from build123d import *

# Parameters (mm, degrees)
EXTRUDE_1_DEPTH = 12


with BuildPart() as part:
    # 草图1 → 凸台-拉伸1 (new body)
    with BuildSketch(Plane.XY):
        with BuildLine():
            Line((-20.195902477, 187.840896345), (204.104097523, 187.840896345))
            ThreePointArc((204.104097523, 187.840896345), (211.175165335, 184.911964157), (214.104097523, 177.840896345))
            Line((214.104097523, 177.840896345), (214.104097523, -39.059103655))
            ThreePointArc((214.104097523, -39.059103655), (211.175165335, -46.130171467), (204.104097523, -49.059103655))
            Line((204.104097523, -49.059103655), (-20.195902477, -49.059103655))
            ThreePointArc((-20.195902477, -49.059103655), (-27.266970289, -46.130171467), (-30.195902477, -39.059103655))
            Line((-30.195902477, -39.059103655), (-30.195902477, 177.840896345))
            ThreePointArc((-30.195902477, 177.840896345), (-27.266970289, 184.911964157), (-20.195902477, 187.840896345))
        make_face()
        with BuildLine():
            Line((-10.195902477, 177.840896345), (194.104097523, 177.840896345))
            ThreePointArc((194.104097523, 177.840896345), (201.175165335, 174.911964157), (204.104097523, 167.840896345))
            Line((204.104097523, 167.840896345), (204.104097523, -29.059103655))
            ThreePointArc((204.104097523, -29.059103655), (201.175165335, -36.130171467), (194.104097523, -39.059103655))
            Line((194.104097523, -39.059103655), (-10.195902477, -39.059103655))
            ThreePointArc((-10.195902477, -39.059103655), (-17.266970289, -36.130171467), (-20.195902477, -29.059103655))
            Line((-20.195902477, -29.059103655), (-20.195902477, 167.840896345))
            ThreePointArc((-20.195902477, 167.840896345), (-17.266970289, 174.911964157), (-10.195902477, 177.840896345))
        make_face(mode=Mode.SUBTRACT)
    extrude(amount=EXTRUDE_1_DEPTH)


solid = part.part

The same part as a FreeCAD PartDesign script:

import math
import FreeCAD as App
import Part
import Sketcher

doc = App.newDocument("Part")
body = doc.addObject("PartDesign::Body", "Body")

# Sketch on XY plane
sketch1 = doc.addObject("Sketcher::SketchObject", "Sketch")
body.addObject(sketch1)
sketch1.AttachmentSupport = (doc.XY_Plane, [""])
sketch1.MapMode = "FlatFace"
sketch1.addGeometry([
    Part.LineSegment(App.Vector(204.104098, 187.840896, 0), App.Vector(-20.195902, 187.840896, 0)),  # 0
    Part.ArcOfCircle(Part.Circle(App.Vector(-20.195902, 177.840896, 0), App.Vector(0, 0, 1), 10), math.radians(90), math.radians(180)),  # 1
    Part.LineSegment(App.Vector(-30.195902, 177.840896, 0), App.Vector(-30.195902, -39.059104, 0)),  # 2
    Part.ArcOfCircle(Part.Circle(App.Vector(-20.195902, -39.059104, 0), App.Vector(0, 0, 1), 10), math.radians(180), math.radians(270)),  # 3
    Part.LineSegment(App.Vector(-20.195902, -49.059104, 0), App.Vector(204.104098, -49.059104, 0)),  # 4
    Part.ArcOfCircle(Part.Circle(App.Vector(204.104098, -39.059104, 0), App.Vector(0, 0, 1), 10), math.radians(-90), math.radians(0)),  # 5
    Part.LineSegment(App.Vector(214.104098, -39.059104, 0), App.Vector(214.104098, 177.840896, 0)),  # 6
    Part.ArcOfCircle(Part.Circle(App.Vector(204.104098, 177.840896, 0), App.Vector(0, 0, 1), 10), math.radians(0), math.radians(90)),  # 7
    Part.LineSegment(App.Vector(-10.195902, 177.840896, 0), App.Vector(194.104098, 177.840896, 0)),  # 8
    Part.ArcOfCircle(Part.Circle(App.Vector(194.104098, 167.840896, 0), App.Vector(0, 0, 1), 10), math.radians(0), math.radians(90)),  # 9
    Part.LineSegment(App.Vector(204.104098, 167.840896, 0), App.Vector(204.104098, -29.059104, 0)),  # 10
    Part.ArcOfCircle(Part.Circle(App.Vector(194.104098, -29.059104, 0), App.Vector(0, 0, 1), 10), math.radians(-90), math.radians(0)),  # 11
    Part.LineSegment(App.Vector(194.104098, -39.059104, 0), App.Vector(-10.195902, -39.059104, 0)),  # 12
    Part.ArcOfCircle(Part.Circle(App.Vector(-10.195902, -29.059104, 0), App.Vector(0, 0, 1), 10), math.radians(180), math.radians(270)),  # 13
    Part.LineSegment(App.Vector(-20.195902, -29.059104, 0), App.Vector(-20.195902, 167.840896, 0)),  # 14
    Part.ArcOfCircle(Part.Circle(App.Vector(-10.195902, 167.840896, 0), App.Vector(0, 0, 1), 10), math.radians(90), math.radians(180)),  # 15
], False)
sketch1.addConstraint([
    Sketcher.Constraint("Tangent", 0, 2, 1, 1),
    Sketcher.Constraint("Tangent", 1, 2, 2, 1),
    Sketcher.Constraint("Tangent", 2, 2, 3, 1),
    Sketcher.Constraint("Tangent", 3, 2, 4, 1),
    Sketcher.Constraint("Tangent", 4, 2, 5, 1),
    Sketcher.Constraint("Tangent", 5, 2, 6, 1),
    Sketcher.Constraint("Tangent", 6, 2, 7, 1),
    Sketcher.Constraint("Tangent", 7, 2, 0, 1),
    Sketcher.Constraint("Tangent", 8, 2, 9, 2),
    Sketcher.Constraint("Tangent", 9, 1, 10, 1),
    Sketcher.Constraint("Tangent", 10, 2, 11, 2),
    Sketcher.Constraint("Tangent", 11, 1, 12, 1),
    Sketcher.Constraint("Tangent", 12, 2, 13, 2),
    Sketcher.Constraint("Tangent", 13, 1, 14, 1),
    Sketcher.Constraint("Tangent", 14, 2, 15, 2),
    Sketcher.Constraint("Tangent", 15, 1, 8, 1),
    Sketcher.Constraint("Horizontal", 0),
    Sketcher.Constraint("Vertical", 2),
    Sketcher.Constraint("Horizontal", 4),
    Sketcher.Constraint("Vertical", 6),
    Sketcher.Constraint("Horizontal", 8),
    Sketcher.Constraint("Vertical", 10),
    Sketcher.Constraint("Horizontal", 12),
    Sketcher.Constraint("Vertical", 14),
    Sketcher.Constraint("Equal", 1, 3),
    Sketcher.Constraint("Equal", 3, 5),
    Sketcher.Constraint("Equal", 5, 7),
    Sketcher.Constraint("Equal", 7, 9),
    Sketcher.Constraint("Equal", 9, 11),
    Sketcher.Constraint("Equal", 11, 13),
    Sketcher.Constraint("Equal", 13, 15),
    Sketcher.Constraint("Horizontal", 6, 2, 8, 2),
    Sketcher.Constraint("Horizontal", 5, 2, 11, 1),
    Sketcher.Constraint("Vertical", 7, 2, 9, 1),
    Sketcher.Constraint("Vertical", 3, 2, 13, 1),
    Sketcher.Constraint("Radius", 1, 10.0),
    Sketcher.Constraint("DistanceX", 0, 2, 0, 1, 224.3),
    Sketcher.Constraint("DistanceY", 2, 2, 2, 1, 216.9),
    Sketcher.Constraint("DistanceX", 1, 3, -1, 1, 20.195902),
    Sketcher.Constraint("DistanceY", -1, 1, 1, 3, 177.840896),
])
pad1 = doc.addObject("PartDesign::Pad", "Pad")
body.addObject(pad1)
pad1.Profile = sketch1
pad1.Length = 12

doc.recompute()
